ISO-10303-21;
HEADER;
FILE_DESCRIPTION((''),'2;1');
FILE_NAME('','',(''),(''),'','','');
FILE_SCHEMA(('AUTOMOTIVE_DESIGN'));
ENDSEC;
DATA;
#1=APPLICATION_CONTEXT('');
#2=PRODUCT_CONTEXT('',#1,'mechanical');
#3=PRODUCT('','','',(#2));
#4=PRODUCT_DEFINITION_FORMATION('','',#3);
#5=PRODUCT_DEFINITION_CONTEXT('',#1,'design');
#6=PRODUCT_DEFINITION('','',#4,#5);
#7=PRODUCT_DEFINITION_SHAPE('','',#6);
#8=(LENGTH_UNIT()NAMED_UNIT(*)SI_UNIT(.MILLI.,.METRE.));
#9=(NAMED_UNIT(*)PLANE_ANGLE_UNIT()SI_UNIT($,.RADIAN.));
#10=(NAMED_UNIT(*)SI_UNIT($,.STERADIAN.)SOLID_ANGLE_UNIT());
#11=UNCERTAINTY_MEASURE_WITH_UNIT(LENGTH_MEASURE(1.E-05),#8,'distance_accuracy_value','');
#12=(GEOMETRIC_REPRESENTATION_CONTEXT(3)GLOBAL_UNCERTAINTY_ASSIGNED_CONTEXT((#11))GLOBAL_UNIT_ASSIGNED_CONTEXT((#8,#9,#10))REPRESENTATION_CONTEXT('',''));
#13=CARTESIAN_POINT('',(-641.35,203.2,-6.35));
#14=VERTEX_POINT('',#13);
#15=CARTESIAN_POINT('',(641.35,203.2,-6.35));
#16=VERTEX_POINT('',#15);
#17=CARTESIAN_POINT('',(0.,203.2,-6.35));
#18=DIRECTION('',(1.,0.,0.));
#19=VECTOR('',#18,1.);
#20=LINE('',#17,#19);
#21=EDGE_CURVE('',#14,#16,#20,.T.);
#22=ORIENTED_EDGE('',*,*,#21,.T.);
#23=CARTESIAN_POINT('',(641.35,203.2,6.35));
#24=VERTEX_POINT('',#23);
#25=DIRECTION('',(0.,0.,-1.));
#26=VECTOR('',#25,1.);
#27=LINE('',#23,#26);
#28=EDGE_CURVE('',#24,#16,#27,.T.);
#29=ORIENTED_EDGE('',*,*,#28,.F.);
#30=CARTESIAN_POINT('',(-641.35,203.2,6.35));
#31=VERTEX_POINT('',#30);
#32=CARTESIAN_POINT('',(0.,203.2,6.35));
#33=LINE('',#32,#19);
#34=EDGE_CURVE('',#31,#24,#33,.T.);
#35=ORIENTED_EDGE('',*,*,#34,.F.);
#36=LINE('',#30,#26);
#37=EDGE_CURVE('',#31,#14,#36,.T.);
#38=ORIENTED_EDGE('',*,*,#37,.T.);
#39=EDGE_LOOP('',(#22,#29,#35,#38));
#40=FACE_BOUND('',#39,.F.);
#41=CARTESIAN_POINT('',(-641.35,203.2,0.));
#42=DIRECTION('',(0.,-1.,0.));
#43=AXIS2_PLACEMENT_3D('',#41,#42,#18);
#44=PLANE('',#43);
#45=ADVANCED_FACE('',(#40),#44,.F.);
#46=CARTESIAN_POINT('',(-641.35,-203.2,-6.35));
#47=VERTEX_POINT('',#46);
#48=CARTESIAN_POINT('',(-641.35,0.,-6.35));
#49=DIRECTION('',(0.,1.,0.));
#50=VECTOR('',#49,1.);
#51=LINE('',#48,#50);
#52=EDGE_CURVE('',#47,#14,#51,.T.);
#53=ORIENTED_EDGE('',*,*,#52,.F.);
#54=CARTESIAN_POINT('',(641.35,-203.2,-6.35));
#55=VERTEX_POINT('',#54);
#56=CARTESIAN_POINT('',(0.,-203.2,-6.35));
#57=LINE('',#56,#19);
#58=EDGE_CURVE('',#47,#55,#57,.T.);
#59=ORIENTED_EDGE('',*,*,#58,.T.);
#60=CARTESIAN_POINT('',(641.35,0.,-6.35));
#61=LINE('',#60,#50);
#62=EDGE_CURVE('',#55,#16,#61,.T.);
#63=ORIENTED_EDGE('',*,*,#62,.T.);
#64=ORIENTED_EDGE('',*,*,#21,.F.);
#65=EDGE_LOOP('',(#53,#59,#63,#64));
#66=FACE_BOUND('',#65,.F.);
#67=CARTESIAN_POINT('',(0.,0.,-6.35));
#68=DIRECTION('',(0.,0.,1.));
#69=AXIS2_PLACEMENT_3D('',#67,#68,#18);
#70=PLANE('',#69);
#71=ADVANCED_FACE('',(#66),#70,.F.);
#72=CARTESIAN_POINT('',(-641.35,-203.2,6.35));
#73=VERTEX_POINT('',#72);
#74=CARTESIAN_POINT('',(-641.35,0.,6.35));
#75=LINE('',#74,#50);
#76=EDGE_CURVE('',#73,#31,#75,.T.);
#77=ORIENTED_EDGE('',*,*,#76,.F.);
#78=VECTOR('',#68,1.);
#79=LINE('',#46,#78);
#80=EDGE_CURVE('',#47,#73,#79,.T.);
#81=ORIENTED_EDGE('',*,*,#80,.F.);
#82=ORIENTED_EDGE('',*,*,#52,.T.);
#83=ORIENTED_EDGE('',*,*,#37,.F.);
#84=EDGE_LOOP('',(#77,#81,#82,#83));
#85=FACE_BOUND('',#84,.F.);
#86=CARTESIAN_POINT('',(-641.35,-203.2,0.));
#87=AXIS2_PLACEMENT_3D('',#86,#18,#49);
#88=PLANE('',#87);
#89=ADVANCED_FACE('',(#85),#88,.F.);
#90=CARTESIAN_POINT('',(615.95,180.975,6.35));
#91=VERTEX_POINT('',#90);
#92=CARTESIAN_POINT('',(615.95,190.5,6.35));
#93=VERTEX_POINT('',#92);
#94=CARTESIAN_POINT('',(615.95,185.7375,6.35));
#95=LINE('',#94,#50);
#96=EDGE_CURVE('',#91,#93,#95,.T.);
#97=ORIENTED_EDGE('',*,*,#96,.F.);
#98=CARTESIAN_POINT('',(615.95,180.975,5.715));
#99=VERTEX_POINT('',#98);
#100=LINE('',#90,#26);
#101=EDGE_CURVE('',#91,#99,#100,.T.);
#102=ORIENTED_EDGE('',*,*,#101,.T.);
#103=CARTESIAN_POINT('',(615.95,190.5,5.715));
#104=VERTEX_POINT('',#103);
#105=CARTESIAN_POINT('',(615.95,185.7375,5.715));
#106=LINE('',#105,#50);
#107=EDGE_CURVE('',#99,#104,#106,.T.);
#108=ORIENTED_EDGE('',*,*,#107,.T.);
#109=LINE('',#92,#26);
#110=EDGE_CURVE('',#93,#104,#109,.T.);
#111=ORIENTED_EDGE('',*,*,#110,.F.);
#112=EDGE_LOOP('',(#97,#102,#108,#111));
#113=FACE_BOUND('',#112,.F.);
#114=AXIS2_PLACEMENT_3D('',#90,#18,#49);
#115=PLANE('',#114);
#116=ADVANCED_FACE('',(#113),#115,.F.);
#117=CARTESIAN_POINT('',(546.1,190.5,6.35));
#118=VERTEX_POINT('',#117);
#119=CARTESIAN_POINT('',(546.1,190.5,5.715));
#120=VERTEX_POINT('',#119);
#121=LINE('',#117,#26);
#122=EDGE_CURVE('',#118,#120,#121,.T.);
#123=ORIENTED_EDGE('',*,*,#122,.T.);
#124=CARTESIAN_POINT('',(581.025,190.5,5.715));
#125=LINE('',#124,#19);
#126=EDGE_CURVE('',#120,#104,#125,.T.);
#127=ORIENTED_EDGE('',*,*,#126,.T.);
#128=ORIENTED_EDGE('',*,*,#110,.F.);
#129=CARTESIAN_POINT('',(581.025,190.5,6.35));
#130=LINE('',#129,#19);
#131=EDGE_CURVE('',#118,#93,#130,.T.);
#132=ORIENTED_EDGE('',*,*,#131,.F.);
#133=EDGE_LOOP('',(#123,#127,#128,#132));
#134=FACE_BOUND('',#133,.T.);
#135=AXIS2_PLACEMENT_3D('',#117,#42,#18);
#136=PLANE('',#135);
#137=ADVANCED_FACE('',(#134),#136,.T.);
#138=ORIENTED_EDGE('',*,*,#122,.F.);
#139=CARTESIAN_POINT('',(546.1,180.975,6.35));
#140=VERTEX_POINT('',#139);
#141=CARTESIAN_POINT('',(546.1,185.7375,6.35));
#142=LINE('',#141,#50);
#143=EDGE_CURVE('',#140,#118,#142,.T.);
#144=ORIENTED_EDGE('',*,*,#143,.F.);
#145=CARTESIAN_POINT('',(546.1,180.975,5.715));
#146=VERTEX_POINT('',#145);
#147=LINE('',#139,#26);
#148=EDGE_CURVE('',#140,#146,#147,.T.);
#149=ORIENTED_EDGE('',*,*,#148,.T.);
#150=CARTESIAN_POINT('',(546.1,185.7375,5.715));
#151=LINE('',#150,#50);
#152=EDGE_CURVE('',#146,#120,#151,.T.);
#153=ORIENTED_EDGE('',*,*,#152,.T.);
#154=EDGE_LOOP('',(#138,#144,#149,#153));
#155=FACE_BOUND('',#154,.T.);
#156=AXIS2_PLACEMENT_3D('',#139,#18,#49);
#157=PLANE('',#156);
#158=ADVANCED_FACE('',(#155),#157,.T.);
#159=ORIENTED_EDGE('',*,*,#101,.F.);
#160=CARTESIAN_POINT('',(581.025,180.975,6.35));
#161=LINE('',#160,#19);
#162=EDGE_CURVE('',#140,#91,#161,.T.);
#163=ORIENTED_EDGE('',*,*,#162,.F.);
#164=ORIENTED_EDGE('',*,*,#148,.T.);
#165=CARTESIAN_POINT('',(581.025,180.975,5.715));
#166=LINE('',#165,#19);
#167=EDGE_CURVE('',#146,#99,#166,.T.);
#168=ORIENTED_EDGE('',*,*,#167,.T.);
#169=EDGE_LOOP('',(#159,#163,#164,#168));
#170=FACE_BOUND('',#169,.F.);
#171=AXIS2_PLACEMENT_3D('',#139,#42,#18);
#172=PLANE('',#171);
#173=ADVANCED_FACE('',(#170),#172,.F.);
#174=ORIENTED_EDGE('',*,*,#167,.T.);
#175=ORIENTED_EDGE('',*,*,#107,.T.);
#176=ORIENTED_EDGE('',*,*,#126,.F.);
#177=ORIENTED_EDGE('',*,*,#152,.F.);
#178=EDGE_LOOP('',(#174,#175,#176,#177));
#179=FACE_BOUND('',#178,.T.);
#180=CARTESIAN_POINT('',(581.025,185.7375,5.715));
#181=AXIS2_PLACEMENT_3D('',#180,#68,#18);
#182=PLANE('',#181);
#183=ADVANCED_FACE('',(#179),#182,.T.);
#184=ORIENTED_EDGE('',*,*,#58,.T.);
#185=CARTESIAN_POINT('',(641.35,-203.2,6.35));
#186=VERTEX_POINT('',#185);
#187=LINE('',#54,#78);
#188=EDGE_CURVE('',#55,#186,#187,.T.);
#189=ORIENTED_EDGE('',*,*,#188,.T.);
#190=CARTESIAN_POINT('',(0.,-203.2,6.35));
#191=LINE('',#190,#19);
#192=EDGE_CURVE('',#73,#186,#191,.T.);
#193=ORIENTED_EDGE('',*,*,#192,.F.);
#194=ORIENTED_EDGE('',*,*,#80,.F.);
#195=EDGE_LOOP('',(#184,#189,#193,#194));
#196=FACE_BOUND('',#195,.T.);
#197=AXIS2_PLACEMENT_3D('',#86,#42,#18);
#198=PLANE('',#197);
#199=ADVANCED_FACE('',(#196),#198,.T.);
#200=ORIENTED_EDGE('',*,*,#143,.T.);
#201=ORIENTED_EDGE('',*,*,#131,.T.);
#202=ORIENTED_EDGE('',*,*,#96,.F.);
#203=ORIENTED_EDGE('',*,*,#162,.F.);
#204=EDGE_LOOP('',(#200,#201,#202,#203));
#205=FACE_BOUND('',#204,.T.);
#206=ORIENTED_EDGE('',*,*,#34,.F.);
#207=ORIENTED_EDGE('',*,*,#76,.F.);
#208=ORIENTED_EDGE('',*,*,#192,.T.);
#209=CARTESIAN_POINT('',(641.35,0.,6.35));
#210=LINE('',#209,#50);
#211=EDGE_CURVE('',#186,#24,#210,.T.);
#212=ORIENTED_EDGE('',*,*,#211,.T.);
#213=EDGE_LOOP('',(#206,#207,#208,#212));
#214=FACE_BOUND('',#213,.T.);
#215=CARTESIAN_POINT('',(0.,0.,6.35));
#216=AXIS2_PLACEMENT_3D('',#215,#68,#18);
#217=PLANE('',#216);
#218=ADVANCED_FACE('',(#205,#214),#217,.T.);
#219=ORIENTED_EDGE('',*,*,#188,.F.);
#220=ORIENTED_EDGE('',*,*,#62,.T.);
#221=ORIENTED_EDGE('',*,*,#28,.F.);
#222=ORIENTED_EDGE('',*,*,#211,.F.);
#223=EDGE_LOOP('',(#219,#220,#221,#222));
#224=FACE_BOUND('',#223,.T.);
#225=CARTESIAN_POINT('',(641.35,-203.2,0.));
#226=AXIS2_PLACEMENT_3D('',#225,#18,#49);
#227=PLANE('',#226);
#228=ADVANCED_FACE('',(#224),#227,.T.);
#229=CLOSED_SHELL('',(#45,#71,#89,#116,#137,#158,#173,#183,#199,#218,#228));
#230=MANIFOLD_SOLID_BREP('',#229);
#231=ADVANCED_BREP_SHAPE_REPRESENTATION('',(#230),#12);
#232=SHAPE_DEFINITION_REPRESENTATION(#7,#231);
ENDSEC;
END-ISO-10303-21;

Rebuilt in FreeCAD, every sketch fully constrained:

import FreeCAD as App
import Part
import Sketcher
Q = App.Units.Quantity

doc = App.newDocument("Part")
params = doc.addObject("Spreadsheet::Sheet", "Params")
for row, (alias, value) in enumerate([
    ("sketch1_height", "16 in"),
    ("sketch1_width", "50.5 in"),
    ("pad1_length", "0.5 in"),
    ("sketch2_width", "2.75 in"),
    ("sketch2_height", "0.375 in"),
    ("pocket1_length", "0.025 in"),
], start=1):
    params.set(f"A{row}", alias)
    params.set(f"B{row}", "=" + value)
    params.setAlias(f"B{row}", alias)

body = doc.addObject("PartDesign::Body", "Body")

# Sketch on XY plane
sketch1 = body.newObject("Sketcher::SketchObject", "Sketch")
sketch1.AttachmentSupport = (doc.getObject("XY_Plane"), [""])
sketch1.MapMode = "FlatFace"
sketch1.addGeometry([
    Part.LineSegment(App.Vector(-641, 203, 0), App.Vector(-641, -203, 0)),
    Part.LineSegment(App.Vector(-641, -203, 0), App.Vector(641, -203, 0)),
    Part.LineSegment(App.Vector(641, -203, 0), App.Vector(641, 203, 0)),
    Part.LineSegment(App.Vector(641, 203, 0), App.Vector(-641, 203, 0)),
], False)
sketch1.addConstraint([
    Sketcher.Constraint("Coincident", 0, 2, 1, 1),
    Sketcher.Constraint("Coincident", 1, 2, 2, 1),
    Sketcher.Constraint("Coincident", 2, 2, 3, 1),
    Sketcher.Constraint("Coincident", 3, 2, 0, 1),
    Sketcher.Constraint("Vertical", 0),
    Sketcher.Constraint("Horizontal", 1),
    Sketcher.Constraint("Vertical", 2),
    Sketcher.Constraint("Horizontal", 3),
    Sketcher.Constraint("Symmetric", 0, 2, 2, 2, -1, 1),
    Sketcher.Constraint("DistanceY", 0, 2, 0, 1, Q("16 in")),
    Sketcher.Constraint("DistanceX", 1, 1, 1, 2, Q("50.5 in")),
])
sketch1.setExpression("Constraints[9]", "Params.sketch1_height")
sketch1.setExpression("Constraints[10]", "Params.sketch1_width")
pad1 = body.newObject("PartDesign::Pad", "Pad")
pad1.Profile = sketch1
pad1.setExpression("Length", "Params.pad1_length")
pad1.Midplane = True

# Sketch on XY plane
sketch2 = body.newObject("Sketcher::SketchObject", "Sketch001")
sketch2.AttachmentSupport = (doc.getObject("XY_Plane"), [""])
sketch2.MapMode = "FlatFace"
sketch2.AttachmentOffset = App.Placement(App.Vector(0, 0, 0.25 * 25.4), App.Rotation())
sketch2.addGeometry([
    Part.LineSegment(App.Vector(546, 190, 0), App.Vector(546, 181, 0)),
    Part.LineSegment(App.Vector(546, 181, 0), App.Vector(616, 181, 0)),
    Part.LineSegment(App.Vector(616, 181, 0), App.Vector(616, 190, 0)),
    Part.LineSegment(App.Vector(616, 190, 0), App.Vector(546, 190, 0)),
], False)
sketch2.addConstraint([
    Sketcher.Constraint("Coincident", 0, 2, 1, 1),
    Sketcher.Constraint("Coincident", 1, 2, 2, 1),
    Sketcher.Constraint("Coincident", 2, 2, 3, 1),
    Sketcher.Constraint("Coincident", 3, 2, 0, 1),
    Sketcher.Constraint("Vertical", 0),
    Sketcher.Constraint("Horizontal", 1),
    Sketcher.Constraint("Vertical", 2),
    Sketcher.Constraint("Horizontal", 3),
    Sketcher.Constraint("DistanceX", 1, 1, 1, 2, Q("2.75 in")),
    Sketcher.Constraint("DistanceX", -1, 1, 0, 2, Q("21.5 in")),
    Sketcher.Constraint("DistanceY", -1, 1, 2, 2, Q("7.5 in")),
    Sketcher.Constraint("DistanceY", 0, 2, 0, 1, Q("0.375 in")),
])
sketch2.setExpression("Constraints[8]", "Params.sketch2_width")
sketch2.setExpression("Constraints[11]", "Params.sketch2_height")
pocket1 = body.newObject("PartDesign::Pocket", "Pocket")
pocket1.Profile = sketch2
pocket1.setExpression("Length", "Params.pocket1_length")

doc.recompute()
